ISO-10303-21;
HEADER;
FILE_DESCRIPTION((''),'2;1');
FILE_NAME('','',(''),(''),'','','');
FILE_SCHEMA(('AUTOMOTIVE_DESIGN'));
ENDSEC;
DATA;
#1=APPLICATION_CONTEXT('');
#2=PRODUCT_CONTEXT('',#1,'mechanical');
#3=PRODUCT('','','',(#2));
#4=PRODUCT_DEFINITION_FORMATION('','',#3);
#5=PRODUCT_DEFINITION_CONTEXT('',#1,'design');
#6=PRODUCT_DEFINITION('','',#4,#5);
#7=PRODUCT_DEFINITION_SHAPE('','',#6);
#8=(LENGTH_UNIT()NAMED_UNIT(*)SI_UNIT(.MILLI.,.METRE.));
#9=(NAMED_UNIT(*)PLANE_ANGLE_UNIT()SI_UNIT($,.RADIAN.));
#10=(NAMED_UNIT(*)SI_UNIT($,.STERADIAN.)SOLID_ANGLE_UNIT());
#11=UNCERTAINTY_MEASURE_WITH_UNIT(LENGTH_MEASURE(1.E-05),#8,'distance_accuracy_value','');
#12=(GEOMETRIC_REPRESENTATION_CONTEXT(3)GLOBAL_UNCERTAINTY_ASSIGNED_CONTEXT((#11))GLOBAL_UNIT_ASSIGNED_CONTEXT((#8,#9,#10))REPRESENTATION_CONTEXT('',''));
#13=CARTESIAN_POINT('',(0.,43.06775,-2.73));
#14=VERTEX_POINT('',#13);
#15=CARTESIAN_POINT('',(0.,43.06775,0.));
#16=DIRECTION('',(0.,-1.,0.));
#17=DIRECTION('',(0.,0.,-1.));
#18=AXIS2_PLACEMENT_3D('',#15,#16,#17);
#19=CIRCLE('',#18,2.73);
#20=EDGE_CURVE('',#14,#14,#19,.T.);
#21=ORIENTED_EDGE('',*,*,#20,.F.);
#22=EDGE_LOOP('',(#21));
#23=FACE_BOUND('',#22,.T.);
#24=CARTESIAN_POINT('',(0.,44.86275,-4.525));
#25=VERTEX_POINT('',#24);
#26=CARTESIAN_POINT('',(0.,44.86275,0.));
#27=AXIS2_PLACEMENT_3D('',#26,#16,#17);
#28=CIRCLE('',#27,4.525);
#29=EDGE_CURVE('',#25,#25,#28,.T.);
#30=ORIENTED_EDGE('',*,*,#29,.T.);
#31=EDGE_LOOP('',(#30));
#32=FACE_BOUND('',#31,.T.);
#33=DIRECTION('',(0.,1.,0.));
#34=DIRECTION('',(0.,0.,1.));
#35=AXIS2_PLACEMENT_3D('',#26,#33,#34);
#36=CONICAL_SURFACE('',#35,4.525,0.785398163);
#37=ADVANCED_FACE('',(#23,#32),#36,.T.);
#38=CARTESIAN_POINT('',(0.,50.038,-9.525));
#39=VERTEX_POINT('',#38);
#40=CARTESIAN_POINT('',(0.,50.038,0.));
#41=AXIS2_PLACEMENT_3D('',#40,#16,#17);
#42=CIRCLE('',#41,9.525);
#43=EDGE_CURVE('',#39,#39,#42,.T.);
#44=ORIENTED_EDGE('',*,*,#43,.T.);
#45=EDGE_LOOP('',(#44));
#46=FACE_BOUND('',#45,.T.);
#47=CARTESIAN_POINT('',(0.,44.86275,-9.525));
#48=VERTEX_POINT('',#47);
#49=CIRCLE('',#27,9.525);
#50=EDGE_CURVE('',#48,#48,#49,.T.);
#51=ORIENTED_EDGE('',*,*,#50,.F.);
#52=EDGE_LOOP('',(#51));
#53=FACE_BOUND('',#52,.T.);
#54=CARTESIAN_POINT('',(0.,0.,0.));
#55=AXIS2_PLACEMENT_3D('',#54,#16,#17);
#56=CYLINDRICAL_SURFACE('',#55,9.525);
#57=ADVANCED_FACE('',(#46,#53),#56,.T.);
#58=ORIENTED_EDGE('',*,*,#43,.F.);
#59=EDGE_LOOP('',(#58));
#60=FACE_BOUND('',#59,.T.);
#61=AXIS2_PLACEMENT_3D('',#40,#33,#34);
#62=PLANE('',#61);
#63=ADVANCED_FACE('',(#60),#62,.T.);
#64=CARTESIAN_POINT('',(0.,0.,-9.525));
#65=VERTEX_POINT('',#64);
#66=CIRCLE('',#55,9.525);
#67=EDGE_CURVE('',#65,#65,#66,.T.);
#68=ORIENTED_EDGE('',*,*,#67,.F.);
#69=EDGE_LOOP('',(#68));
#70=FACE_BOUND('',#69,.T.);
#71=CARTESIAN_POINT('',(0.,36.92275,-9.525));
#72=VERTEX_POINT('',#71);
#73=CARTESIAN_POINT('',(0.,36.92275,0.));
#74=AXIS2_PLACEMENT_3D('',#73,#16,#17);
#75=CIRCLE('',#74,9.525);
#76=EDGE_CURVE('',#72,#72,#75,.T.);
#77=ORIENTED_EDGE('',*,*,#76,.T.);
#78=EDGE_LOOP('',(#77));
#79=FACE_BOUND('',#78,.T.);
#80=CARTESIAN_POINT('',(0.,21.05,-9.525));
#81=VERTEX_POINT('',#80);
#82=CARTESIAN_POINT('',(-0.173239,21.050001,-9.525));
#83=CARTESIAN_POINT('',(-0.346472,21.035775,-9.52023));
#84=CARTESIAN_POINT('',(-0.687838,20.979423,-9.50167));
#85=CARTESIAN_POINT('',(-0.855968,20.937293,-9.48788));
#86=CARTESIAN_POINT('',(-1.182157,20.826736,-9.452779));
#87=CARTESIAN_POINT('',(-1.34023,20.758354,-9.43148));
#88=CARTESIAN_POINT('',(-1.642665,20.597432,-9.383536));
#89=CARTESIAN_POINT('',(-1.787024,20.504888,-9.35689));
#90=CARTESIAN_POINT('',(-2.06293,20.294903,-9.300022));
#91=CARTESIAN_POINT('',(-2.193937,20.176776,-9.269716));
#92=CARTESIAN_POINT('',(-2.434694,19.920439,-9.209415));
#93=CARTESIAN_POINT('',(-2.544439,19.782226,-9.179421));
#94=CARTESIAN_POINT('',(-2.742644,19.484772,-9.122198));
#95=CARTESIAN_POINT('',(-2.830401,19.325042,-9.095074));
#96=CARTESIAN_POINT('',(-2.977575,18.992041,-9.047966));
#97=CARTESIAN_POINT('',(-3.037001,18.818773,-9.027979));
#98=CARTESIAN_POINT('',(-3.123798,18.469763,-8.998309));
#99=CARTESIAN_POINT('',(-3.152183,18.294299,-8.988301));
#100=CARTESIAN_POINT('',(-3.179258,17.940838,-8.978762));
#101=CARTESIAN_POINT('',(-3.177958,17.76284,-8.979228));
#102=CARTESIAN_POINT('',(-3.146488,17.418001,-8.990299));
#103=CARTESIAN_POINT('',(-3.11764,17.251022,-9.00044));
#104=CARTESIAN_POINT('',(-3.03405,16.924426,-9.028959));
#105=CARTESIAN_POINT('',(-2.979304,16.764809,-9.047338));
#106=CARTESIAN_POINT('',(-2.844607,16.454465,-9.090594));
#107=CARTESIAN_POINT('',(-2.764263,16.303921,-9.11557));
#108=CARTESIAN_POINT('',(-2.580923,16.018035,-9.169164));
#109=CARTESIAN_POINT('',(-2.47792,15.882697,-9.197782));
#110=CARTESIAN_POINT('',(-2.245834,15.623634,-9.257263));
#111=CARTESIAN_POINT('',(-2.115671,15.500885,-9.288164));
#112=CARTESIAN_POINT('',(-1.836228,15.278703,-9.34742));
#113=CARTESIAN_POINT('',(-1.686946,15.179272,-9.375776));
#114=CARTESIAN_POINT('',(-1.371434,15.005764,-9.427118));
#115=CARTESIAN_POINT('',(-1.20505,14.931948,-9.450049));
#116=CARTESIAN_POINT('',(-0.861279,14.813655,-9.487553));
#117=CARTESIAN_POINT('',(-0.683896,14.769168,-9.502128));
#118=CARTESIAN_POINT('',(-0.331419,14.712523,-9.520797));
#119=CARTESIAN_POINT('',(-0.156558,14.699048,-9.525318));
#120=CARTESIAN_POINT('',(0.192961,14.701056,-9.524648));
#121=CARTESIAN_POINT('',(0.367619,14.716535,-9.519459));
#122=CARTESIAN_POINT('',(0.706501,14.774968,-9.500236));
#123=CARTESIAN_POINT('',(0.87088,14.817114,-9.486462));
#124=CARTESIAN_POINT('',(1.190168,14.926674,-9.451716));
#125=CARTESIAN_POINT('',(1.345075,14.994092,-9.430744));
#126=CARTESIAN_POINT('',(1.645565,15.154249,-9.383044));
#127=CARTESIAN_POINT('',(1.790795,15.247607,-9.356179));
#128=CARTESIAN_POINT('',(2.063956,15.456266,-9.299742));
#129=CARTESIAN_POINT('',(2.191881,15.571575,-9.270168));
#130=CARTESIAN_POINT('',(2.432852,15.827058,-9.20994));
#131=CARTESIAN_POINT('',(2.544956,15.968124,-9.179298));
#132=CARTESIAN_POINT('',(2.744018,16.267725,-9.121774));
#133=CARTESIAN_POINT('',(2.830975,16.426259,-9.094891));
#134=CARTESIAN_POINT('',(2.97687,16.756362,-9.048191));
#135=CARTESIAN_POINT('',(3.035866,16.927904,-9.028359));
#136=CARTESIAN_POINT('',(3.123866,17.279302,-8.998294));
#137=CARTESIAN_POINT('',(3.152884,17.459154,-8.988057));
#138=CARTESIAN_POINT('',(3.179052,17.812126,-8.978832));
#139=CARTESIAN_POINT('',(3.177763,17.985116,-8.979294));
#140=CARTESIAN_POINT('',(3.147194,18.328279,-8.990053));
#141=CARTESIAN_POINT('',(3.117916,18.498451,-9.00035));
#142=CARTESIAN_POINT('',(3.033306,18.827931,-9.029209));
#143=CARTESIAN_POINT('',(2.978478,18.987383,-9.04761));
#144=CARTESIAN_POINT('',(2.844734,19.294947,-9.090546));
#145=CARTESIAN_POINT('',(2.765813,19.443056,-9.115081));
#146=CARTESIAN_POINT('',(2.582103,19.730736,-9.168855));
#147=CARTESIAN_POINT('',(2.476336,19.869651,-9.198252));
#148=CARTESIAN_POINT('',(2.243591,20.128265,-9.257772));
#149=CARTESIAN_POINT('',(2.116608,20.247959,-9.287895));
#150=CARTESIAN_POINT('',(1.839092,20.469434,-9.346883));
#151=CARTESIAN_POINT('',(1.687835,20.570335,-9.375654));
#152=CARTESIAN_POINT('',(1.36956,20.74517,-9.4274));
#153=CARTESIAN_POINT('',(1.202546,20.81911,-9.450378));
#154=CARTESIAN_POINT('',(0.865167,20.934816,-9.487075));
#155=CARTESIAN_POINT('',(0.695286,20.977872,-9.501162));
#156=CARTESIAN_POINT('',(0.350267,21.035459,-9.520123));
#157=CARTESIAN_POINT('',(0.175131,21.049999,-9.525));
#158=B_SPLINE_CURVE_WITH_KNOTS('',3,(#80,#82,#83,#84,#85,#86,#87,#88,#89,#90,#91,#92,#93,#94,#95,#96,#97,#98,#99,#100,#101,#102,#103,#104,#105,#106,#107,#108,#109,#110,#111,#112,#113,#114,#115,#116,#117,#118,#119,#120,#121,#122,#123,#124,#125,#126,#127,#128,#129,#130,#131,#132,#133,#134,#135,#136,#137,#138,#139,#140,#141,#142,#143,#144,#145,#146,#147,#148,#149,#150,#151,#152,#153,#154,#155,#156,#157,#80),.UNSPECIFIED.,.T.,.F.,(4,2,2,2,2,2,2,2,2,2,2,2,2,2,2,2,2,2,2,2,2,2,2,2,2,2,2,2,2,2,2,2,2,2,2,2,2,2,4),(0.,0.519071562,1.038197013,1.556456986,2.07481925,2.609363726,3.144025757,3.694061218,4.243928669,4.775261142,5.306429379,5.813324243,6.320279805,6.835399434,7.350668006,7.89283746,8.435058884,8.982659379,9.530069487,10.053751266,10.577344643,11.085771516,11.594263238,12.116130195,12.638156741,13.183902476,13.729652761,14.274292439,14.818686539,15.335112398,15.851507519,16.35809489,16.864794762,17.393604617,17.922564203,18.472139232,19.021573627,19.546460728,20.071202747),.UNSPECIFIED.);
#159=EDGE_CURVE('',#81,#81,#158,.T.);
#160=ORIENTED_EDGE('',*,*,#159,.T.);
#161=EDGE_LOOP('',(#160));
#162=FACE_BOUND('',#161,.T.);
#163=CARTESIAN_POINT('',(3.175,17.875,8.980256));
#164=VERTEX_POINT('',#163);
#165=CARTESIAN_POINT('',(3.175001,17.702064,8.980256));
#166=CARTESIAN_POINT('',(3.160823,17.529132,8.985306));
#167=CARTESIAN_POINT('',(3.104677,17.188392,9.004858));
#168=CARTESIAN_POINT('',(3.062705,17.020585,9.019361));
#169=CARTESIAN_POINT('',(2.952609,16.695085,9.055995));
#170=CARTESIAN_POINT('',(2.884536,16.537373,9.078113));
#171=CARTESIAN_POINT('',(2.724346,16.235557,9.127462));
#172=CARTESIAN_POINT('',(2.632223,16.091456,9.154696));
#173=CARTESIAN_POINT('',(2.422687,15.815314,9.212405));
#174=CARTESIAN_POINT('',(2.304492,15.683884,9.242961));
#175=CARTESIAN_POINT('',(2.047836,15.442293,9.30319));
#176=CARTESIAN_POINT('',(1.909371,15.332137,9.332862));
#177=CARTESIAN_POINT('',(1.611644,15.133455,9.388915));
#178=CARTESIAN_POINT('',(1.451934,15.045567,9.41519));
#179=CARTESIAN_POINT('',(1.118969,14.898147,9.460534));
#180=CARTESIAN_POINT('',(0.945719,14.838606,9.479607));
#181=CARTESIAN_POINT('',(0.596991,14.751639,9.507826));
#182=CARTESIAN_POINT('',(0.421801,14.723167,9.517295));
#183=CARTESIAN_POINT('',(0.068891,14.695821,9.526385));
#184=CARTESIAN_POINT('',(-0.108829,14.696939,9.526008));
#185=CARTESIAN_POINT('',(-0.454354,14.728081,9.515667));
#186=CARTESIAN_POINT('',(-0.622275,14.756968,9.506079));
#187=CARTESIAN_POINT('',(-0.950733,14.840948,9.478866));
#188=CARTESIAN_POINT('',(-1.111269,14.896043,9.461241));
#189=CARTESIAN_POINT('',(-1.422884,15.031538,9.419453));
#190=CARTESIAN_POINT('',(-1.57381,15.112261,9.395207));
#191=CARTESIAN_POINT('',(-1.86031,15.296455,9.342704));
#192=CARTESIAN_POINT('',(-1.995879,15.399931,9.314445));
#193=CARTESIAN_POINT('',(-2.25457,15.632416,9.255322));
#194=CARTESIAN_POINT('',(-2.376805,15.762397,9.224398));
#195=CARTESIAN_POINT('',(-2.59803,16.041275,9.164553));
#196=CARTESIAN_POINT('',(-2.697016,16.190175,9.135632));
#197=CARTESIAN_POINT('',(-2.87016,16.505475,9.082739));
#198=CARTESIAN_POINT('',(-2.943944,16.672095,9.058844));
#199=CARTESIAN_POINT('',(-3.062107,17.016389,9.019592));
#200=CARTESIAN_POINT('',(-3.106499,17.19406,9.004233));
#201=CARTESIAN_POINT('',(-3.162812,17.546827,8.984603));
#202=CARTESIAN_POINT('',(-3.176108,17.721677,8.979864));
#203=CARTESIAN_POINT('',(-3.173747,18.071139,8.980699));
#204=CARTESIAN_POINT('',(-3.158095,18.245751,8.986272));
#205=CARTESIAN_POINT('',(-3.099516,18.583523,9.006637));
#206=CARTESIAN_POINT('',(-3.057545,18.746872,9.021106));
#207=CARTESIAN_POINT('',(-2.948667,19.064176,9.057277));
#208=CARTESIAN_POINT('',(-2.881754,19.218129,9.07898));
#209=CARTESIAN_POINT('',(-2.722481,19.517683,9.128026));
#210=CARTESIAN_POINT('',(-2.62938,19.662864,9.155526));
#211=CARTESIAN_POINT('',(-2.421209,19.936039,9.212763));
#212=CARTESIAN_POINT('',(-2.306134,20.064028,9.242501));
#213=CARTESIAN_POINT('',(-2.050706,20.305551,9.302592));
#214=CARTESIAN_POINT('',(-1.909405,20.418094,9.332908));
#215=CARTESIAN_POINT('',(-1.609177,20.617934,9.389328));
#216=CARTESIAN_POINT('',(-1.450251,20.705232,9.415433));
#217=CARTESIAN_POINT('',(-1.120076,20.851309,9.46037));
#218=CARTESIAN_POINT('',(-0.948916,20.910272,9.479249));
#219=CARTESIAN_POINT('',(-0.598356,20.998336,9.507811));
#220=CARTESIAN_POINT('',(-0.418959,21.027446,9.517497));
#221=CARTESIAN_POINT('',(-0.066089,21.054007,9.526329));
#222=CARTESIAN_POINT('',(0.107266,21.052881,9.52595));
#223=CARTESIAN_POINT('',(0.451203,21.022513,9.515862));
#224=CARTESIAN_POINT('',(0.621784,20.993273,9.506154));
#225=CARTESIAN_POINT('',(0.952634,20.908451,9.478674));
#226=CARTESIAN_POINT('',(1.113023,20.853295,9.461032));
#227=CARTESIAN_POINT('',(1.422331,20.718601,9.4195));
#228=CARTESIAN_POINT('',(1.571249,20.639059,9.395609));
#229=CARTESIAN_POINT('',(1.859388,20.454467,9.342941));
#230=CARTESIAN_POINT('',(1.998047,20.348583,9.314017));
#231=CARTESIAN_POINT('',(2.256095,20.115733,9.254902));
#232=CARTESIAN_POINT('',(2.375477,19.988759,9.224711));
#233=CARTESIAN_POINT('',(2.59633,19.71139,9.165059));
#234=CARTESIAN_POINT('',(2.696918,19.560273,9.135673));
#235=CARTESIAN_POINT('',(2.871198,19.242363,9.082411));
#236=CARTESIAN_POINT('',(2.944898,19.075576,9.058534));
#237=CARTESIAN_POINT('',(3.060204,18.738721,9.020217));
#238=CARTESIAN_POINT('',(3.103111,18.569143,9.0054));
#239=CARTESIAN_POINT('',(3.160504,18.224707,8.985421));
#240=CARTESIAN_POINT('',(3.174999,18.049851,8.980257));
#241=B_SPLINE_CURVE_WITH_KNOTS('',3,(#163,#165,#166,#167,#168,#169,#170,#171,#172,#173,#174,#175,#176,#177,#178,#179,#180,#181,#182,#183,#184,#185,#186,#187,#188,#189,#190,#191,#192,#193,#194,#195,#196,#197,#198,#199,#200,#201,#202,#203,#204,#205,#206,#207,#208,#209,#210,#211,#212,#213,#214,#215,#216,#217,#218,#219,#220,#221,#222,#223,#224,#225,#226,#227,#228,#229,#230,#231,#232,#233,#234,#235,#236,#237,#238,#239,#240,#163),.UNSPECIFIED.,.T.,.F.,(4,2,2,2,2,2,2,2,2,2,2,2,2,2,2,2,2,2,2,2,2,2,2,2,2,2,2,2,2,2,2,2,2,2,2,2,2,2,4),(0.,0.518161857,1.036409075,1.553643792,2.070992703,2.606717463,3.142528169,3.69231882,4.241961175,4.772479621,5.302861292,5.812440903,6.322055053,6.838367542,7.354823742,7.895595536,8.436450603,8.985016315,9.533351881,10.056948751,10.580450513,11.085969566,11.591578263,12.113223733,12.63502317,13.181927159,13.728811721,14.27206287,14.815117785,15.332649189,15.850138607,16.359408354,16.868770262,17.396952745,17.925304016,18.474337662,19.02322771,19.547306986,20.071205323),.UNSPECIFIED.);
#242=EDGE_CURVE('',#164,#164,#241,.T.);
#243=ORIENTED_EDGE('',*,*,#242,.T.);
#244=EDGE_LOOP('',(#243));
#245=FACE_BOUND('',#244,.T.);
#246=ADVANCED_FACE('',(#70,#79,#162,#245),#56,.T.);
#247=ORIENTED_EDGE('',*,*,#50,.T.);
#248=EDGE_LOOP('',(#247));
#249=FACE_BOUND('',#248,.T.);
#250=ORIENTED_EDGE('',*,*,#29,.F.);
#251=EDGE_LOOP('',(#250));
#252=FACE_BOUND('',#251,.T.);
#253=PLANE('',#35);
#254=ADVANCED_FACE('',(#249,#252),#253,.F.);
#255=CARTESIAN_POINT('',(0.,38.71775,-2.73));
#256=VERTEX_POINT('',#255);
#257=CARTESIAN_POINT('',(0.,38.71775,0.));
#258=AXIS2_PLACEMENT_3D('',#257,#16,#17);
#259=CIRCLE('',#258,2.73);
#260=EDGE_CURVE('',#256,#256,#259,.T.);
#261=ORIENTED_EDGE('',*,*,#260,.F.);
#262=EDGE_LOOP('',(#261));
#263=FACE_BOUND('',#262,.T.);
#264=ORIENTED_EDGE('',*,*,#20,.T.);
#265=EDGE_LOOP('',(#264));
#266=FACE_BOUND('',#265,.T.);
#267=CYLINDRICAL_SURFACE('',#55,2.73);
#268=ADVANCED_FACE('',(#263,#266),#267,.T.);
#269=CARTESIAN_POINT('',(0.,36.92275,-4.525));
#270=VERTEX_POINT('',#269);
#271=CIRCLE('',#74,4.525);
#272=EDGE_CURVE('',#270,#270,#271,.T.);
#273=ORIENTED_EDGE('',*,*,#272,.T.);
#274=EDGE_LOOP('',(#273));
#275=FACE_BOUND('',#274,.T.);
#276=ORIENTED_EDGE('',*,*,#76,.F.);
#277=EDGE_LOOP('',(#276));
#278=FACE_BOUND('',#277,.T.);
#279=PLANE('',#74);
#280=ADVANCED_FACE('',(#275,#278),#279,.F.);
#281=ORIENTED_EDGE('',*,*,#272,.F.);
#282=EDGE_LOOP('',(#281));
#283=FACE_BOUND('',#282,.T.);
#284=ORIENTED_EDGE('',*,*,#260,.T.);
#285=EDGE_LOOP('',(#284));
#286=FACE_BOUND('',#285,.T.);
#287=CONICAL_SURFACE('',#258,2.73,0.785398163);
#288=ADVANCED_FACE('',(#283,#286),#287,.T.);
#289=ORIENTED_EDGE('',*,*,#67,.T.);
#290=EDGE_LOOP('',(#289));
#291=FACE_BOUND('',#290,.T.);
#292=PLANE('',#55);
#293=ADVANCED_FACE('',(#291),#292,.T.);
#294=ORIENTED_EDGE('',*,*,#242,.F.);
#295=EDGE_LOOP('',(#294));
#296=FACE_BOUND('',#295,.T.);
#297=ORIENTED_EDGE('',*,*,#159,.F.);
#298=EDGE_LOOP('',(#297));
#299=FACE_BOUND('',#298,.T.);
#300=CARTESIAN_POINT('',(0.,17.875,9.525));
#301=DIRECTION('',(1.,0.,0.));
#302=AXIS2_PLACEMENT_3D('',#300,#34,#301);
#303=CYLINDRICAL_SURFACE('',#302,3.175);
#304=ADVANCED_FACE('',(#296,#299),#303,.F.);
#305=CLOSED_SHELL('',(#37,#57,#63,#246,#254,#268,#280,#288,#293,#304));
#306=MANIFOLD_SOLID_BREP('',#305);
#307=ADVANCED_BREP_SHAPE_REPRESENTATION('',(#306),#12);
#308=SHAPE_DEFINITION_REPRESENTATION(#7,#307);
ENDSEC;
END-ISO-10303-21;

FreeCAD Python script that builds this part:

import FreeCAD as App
import Part
import Sketcher
Q = App.Units.Quantity


def add_polygon(sketch, points):
    """Adds a closed chain of lines whose ends are joined by coincident constraints."""
    first, n = sketch.GeometryCount, len(points)
    for a, b in zip(points, points[1:] + points[:1]):
        sketch.addGeometry(Part.LineSegment(App.Vector(*a, 0), App.Vector(*b, 0)), False)
    for i in range(n):
        sketch.addConstraint(Sketcher.Constraint("Coincident", first + i, 2, first + (i + 1) % n, 1))

doc = App.newDocument("Part")
body = doc.addObject("PartDesign::Body", "Body")

sketch1 = body.newObject("Sketcher::SketchObject", "Sketch")
sketch1.AttachmentSupport = (doc.getObject("XY_Plane"), [""])
sketch1.MapMode = "FlatFace"
add_polygon(sketch1, [(-9.5, 0), (0, 0), (0, 50), (-9.5, 50), (-9.5, 44.9), (-4.5, 44.9), (-2.7, 43.1), (-2.7, 38.7), (-4.5, 36.9), (-9.5, 36.9)])
sketch1.addConstraint(Sketcher.Constraint("Horizontal", 0))
sketch1.addConstraint(Sketcher.Constraint("Vertical", 1))
sketch1.addConstraint(Sketcher.Constraint("Horizontal", 2))
sketch1.addConstraint(Sketcher.Constraint("Vertical", 3))
sketch1.addConstraint(Sketcher.Constraint("Horizontal", 4))
sketch1.addConstraint(Sketcher.Constraint("Vertical", 6))
sketch1.addConstraint(Sketcher.Constraint("Horizontal", 8))
sketch1.addConstraint(Sketcher.Constraint("Vertical", 9))
sketch1.addConstraint(Sketcher.Constraint("Coincident", 0, 2, -1, 1))
sketch1.addConstraint(Sketcher.Constraint("Perpendicular", 5, 7))
sketch1.addConstraint(Sketcher.Constraint("Vertical", 4, 2, 7, 2))
sketch1.addConstraint(Sketcher.Constraint("Vertical", 3, 2, 8, 2))
sketch1.addConstraint(Sketcher.Constraint("Equal", 5, 7))
sketch1.addConstraint(Sketcher.Constraint("DistanceY", 1, 1, 1, 2, Q("1.97 in")))
sketch1.addConstraint(Sketcher.Constraint("DistanceX", 0, 1, 0, 2, Q("0.375 in")))
sketch1.addConstraint(Sketcher.Constraint("DistanceX", 4, 1, 4, 2, Q("5 mm")))
sketch1.addConstraint(Sketcher.Constraint("DistanceY", 6, 2, 6, 1, Q("4.35 mm")))
sketch1.addConstraint(Sketcher.Constraint("DistanceY", 3, 2, 3, 1, Q("5.17525 mm")))
sketch1.addConstraint(Sketcher.Constraint("DistanceY", 9, 2, 9, 1, Q("36.92275 mm")))
revolution = body.newObject("PartDesign::Revolution", "Revolution")
revolution.Profile = sketch1
revolution.ReferenceAxis = (sketch1, ["V_Axis"])
revolution.Angle = 360

sketch2 = body.newObject("Sketcher::SketchObject", "Sketch001")
sketch2.AttachmentSupport = (doc.getObject("XY_Plane"), [""])
sketch2.MapMode = "FlatFace"
sketch2.AttachmentOffset = App.Placement(App.Vector(0, 0, 0.375 * 25.4), App.Rotation())
sketch2.addGeometry(Part.Circle(App.Vector(0, 17.9, 0), App.Vector(0, 0, 1), 3.2), False)
sketch2.addConstraint(Sketcher.Constraint("PointOnObject", 0, 3, -2))
sketch2.addConstraint(Sketcher.Constraint("Diameter", 0, Q("0.25 in")))
sketch2.addConstraint(Sketcher.Constraint("DistanceY", -1, 1, 0, 3, Q("17.875 mm")))
doc.recompute()
hole = body.newObject("PartDesign::Hole", "Hole")
hole.Profile = sketch2
hole.ThreadType = "None"
hole.Diameter = Q("0.25 in")
hole.DepthType = "ThroughAll"

doc.recompute()
